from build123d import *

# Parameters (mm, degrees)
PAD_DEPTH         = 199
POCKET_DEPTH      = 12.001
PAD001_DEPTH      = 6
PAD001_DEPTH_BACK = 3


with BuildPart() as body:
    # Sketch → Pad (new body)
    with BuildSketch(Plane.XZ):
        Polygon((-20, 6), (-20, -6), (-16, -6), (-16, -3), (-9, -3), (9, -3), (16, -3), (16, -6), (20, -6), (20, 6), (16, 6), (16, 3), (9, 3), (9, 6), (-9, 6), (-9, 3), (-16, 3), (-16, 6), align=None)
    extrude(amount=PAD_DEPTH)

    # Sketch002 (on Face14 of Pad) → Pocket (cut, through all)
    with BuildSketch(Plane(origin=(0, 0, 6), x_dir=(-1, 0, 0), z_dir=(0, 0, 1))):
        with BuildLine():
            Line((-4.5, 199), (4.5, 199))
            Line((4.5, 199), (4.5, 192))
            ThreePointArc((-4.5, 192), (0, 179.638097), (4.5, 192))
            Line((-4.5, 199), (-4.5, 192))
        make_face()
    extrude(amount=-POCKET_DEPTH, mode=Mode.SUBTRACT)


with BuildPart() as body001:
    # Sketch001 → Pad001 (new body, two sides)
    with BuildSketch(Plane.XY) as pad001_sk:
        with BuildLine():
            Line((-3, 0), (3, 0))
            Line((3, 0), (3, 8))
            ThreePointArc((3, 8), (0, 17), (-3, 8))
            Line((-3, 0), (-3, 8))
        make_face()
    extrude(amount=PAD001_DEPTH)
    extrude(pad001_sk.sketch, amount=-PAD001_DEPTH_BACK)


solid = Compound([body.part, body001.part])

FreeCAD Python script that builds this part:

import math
import FreeCAD as App
import Part
import Sketcher
Q = App.Units.Quantity

doc = App.newDocument("Part")
body = doc.addObject("PartDesign::Body", "Body")

# Sketch on XZ plane
sketch1 = body.newObject("Sketcher::SketchObject", "Sketch")
sketch1.AttachmentSupport = (doc.getObject("XZ_Plane"), [""])
sketch1.MapMode = "FlatFace"
sketch1.addGeometry([
    Part.LineSegment(App.Vector(-20, 6, 0), App.Vector(-20, -6, 0)),  # 0
    Part.LineSegment(App.Vector(-20, -6, 0), App.Vector(-16, -6, 0)),  # 1
    Part.LineSegment(App.Vector(-16, -6, 0), App.Vector(-16, -3, 0)),  # 2
    Part.LineSegment(App.Vector(-16, -3, 0), App.Vector(16, -3, 0)),  # 3
    Part.LineSegment(App.Vector(16, -3, 0), App.Vector(16, -6, 0)),  # 4
    Part.LineSegment(App.Vector(16, -6, 0), App.Vector(20, -6, 0)),  # 5
    Part.LineSegment(App.Vector(20, -6, 0), App.Vector(20, 6, 0)),  # 6
    Part.LineSegment(App.Vector(20, 6, 0), App.Vector(16, 6, 0)),  # 7
    Part.LineSegment(App.Vector(16, 6, 0), App.Vector(16, 3, 0)),  # 8
    Part.LineSegment(App.Vector(16, 3, 0), App.Vector(9, 3, 0)),  # 9
    Part.LineSegment(App.Vector(9, 3, 0), App.Vector(9, 6, 0)),  # 10
    Part.LineSegment(App.Vector(9, 6, 0), App.Vector(-9, 6, 0)),  # 11
    Part.LineSegment(App.Vector(-9, 6, 0), App.Vector(-9, 3, 0)),  # 12
    Part.LineSegment(App.Vector(-9, 3, 0), App.Vector(-16, 3, 0)),  # 13
    Part.LineSegment(App.Vector(-16, 3, 0), App.Vector(-16, 6, 0)),  # 14
    Part.LineSegment(App.Vector(-16, 6, 0), App.Vector(-20, 6, 0)),  # 15
], False)
sketch1.addConstraint([
    Sketcher.Constraint("Coincident", 0, 2, 1, 1),
    Sketcher.Constraint("Coincident", 1, 2, 2, 1),
    Sketcher.Constraint("Coincident", 2, 2, 3, 1),
    Sketcher.Constraint("Coincident", 3, 2, 4, 1),
    Sketcher.Constraint("Coincident", 4, 2, 5, 1),
    Sketcher.Constraint("Coincident", 5, 2, 6, 1),
    Sketcher.Constraint("Coincident", 6, 2, 7, 1),
    Sketcher.Constraint("Coincident", 7, 2, 8, 1),
    Sketcher.Constraint("Coincident", 8, 2, 9, 1),
    Sketcher.Constraint("Coincident", 9, 2, 10, 1),
    Sketcher.Constraint("Coincident", 10, 2, 11, 1),
    Sketcher.Constraint("Coincident", 11, 2, 12, 1),
    Sketcher.Constraint("Coincident", 12, 2, 13, 1),
    Sketcher.Constraint("Coincident", 13, 2, 14, 1),
    Sketcher.Constraint("Coincident", 14, 2, 15, 1),
    Sketcher.Constraint("Coincident", 15, 2, 0, 1),
    Sketcher.Constraint("Vertical", 0),
    Sketcher.Constraint("Horizontal", 1),
    Sketcher.Constraint("Vertical", 2),
    Sketcher.Constraint("Horizontal", 3),
    Sketcher.Constraint("Vertical", 4),
    Sketcher.Constraint("Horizontal", 5),
    Sketcher.Constraint("Vertical", 6),
    Sketcher.Constraint("Horizontal", 7),
    Sketcher.Constraint("Vertical", 8),
    Sketcher.Constraint("Horizontal", 9),
    Sketcher.Constraint("Vertical", 10),
    Sketcher.Constraint("Horizontal", 11),
    Sketcher.Constraint("Vertical", 12),
    Sketcher.Constraint("Horizontal", 13),
    Sketcher.Constraint("Vertical", 14),
    Sketcher.Constraint("Horizontal", 15),
    Sketcher.Constraint("Symmetric", 0, 2, 6, 2, -1, 1),
    Sketcher.Constraint("Symmetric", 2, 2, 8, 2, -1, 1),
    Sketcher.Constraint("Symmetric", 3, 2, 13, 2, -1, 1),
    Sketcher.Constraint("Symmetric", 1, 2, 4, 2, -2),
    Sketcher.Constraint("Horizontal", 7, 2, 10, 2),
    Sketcher.Constraint("Horizontal", 11, 2, 14, 2),
    Sketcher.Constraint("Equal", 9, 13),
    Sketcher.Constraint("DistanceX", 1, 1, 1, 2, Q("4 mm")),
    Sketcher.Constraint("DistanceX", 3, 1, 3, 2, Q("32 mm")),
    Sketcher.Constraint("DistanceX", 9, 2, 9, 1, Q("7 mm")),
    Sketcher.Constraint("DistanceY", 0, 2, 0, 1, Q("12 mm")),
    Sketcher.Constraint("DistanceY", 2, 1, 2, 2, Q("3 mm")),
])
pad1 = body.newObject("PartDesign::Pad", "Pad")
pad1.Profile = sketch1
pad1.Length = 199

# Sketch on XY plane
sketch2 = body.newObject("Sketcher::SketchObject", "Sketch001")
sketch2.AttachmentSupport = (doc.getObject("XY_Plane"), [""])
sketch2.MapMode = "FlatFace"
sketch2.AttachmentOffset = App.Placement(App.Vector(0, 0, 6), App.Rotation())
sketch2.addGeometry([
    Part.LineSegment(App.Vector(-4.5, -199, 0), App.Vector(4.5, -199, 0)),
    Part.LineSegment(App.Vector(4.5, -199, 0), App.Vector(4.5, -192, 0)),
    Part.ArcOfCircle(Part.Circle(App.Vector(0, -186.638097, 0), App.Vector(0, 0, 1), 7), math.radians(-49.9948), math.radians(229.9948)),
    Part.LineSegment(App.Vector(-4.5, -192, 0), App.Vector(-4.5, -199, 0)),
], False)
sketch2.addConstraint([
    Sketcher.Constraint("Coincident", 0, 2, 1, 1),
    Sketcher.Constraint("Coincident", 1, 2, 2, 1),
    Sketcher.Constraint("Coincident", 2, 2, 3, 1),
    Sketcher.Constraint("Coincident", 3, 2, 0, 1),
    Sketcher.Constraint("Horizontal", 0),
    Sketcher.Constraint("Vertical", 1),
    Sketcher.Constraint("Vertical", 3),
    Sketcher.Constraint("Symmetric", 1, 2, 2, 2, -2),
    Sketcher.Constraint("Radius", 2, Q("7 mm")),
    Sketcher.Constraint("DistanceX", 0, 1, 0, 2, Q("9 mm")),
    Sketcher.Constraint("DistanceY", 1, 1, 1, 2, Q("7 mm")),
    Sketcher.Constraint("DistanceY", 0, 2, -1, 1, Q("199 mm")),
])
pocket1 = body.newObject("PartDesign::Pocket", "Pocket")
pocket1.Profile = sketch2
pocket1.Type = "ThroughAll"
body2 = doc.addObject("PartDesign::Body", "Body001")

# Sketch on XY plane
sketch3 = body2.newObject("Sketcher::SketchObject", "Sketch002")
sketch3.AttachmentSupport = (doc.getObject("XY_Plane001"), [""])
sketch3.MapMode = "FlatFace"
sketch3.addGeometry([
    Part.LineSegment(App.Vector(-3, 0, 0), App.Vector(3, 0, 0)),
    Part.LineSegment(App.Vector(3, 0, 0), App.Vector(3, 8, 0)),
    Part.ArcOfCircle(Part.Circle(App.Vector(0, 12, 0), App.Vector(0, 0, 1), 5), math.radians(-53.130102), math.radians(233.130102)),
    Part.LineSegment(App.Vector(-3, 8, 0), App.Vector(-3, 0, 0)),
], False)
sketch3.addConstraint([
    Sketcher.Constraint("Coincident", 0, 2, 1, 1),
    Sketcher.Constraint("Coincident", 1, 2, 2, 1),
    Sketcher.Constraint("Coincident", 2, 2, 3, 1),
    Sketcher.Constraint("Coincident", 3, 2, 0, 1),
    Sketcher.Constraint("Horizontal", 0),
    Sketcher.Constraint("Vertical", 1),
    Sketcher.Constraint("Vertical", 3),
    Sketcher.Constraint("Symmetric", 0, 2, 3, 2, -1, 1),
    Sketcher.Constraint("PointOnObject", 2, 3, -2),
    Sketcher.Constraint("Radius", 2, Q("5 mm")),
    Sketcher.Constraint("DistanceX", 0, 1, 0, 2, Q("6 mm")),
    Sketcher.Constraint("DistanceY", 1, 1, 1, 2, Q("8 mm")),
])
pad2 = body2.newObject("PartDesign::Pad", "Pad001")
pad2.Profile = sketch3
pad2.Type = "TwoLengths"
pad2.Length = 6
pad2.Length2 = 3

doc.recompute()
